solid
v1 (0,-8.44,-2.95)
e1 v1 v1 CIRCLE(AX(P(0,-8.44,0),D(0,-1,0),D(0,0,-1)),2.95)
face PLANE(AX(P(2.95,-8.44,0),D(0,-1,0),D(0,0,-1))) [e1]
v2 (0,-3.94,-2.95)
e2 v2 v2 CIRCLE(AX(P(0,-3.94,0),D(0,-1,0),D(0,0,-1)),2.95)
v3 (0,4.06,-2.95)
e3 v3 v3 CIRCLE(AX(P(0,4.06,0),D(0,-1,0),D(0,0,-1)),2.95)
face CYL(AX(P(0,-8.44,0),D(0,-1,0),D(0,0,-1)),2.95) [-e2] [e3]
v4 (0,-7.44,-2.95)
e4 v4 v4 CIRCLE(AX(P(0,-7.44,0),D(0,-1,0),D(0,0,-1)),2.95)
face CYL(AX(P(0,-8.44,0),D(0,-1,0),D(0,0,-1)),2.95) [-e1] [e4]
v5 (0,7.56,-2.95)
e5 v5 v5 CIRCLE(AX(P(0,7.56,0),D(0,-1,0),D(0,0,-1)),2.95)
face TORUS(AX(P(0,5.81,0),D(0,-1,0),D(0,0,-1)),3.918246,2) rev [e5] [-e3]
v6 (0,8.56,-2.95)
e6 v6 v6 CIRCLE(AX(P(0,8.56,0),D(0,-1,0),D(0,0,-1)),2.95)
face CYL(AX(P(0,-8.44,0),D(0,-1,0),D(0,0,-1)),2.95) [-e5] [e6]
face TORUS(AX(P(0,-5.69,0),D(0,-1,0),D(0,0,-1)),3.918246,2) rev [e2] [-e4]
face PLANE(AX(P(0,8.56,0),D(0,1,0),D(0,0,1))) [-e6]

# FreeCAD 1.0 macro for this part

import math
import FreeCAD as App
import Part
import Sketcher
Q = App.Units.Quantity

doc = App.newDocument("Part")
body = doc.addObject("PartDesign::Body", "Body")

sketch1 = body.newObject("Sketcher::SketchObject", "Sketch")
sketch1.AttachmentSupport = (doc.getObject("XY_Plane"), [""])
sketch1.MapMode = "FlatFace"
sketch1.addGeometry([
    Part.LineSegment(App.Vector(2.95, 8.56, 0), App.Vector(0, 8.56, 0)),
    Part.LineSegment(App.Vector(0, 8.56, 0), App.Vector(0, -8.44, 0)),
    Part.LineSegment(App.Vector(0, -8.44, 0), App.Vector(2.95, -8.44, 0)),
    Part.LineSegment(App.Vector(2.95, -8.44, 0), App.Vector(2.95, -7.44, 0)),
    Part.ArcOfCircle(Part.Circle(App.Vector(3.918246, -5.69, 0), App.Vector(0, 0, 1), 2), math.radians(118.955024), math.radians(241.044976)),
    Part.LineSegment(App.Vector(2.95, -3.94, 0), App.Vector(2.95, 4.06, 0)),
    Part.ArcOfCircle(Part.Circle(App.Vector(3.918246, 5.81, 0), App.Vector(0, 0, 1), 2), math.radians(118.955024), math.radians(241.044976)),
    Part.LineSegment(App.Vector(2.95, 7.56, 0), App.Vector(2.95, 8.56, 0)),
], False)
sketch1.addConstraint([
    Sketcher.Constraint("Coincident", 0, 2, 1, 1),
    Sketcher.Constraint("Coincident", 1, 2, 2, 1),
    Sketcher.Constraint("Coincident", 2, 2, 3, 1),
    Sketcher.Constraint("Coincident", 3, 2, 4, 2),
    Sketcher.Constraint("Coincident", 4, 1, 5, 1),
    Sketcher.Constraint("Coincident", 5, 2, 6, 2),
    Sketcher.Constraint("Coincident", 6, 1, 7, 1),
    Sketcher.Constraint("Coincident", 7, 2, 0, 1),
    Sketcher.Constraint("Horizontal", 0),
    Sketcher.Constraint("Vertical", 1),
    Sketcher.Constraint("Horizontal", 2),
    Sketcher.Constraint("Vertical", 3),
    Sketcher.Constraint("Vertical", 5),
    Sketcher.Constraint("Vertical", 7),
    Sketcher.Constraint("Equal", 4, 6),
    Sketcher.Constraint("PointOnObject", 0, 2, -2),
    Sketcher.Constraint("Vertical", 4, 3, 6, 3),
    Sketcher.Constraint("Vertical", 3, 2, 4, 1),
    Sketcher.Constraint("Vertical", 5, 2, 6, 1),
    Sketcher.Constraint("Equal", 3, 7),
    Sketcher.Constraint("Radius", 4, Q("2 mm")),
    Sketcher.Constraint("DistanceY", 1, 2, 1, 1, Q("17 mm")),
    Sketcher.Constraint("DistanceY", 3, 1, 3, 2, Q("1 mm")),
    Sketcher.Constraint("DistanceY", 5, 1, 5, 2, Q("8 mm")),
    Sketcher.Constraint("DistanceX", 0, 2, 0, 1, Q("2.95 mm")),
    Sketcher.Constraint("DistanceY", 4, 3, -1, 1, Q("5.69 mm")),
])
revolution = body.newObject("PartDesign::Revolution", "Revolution")
revolution.Profile = sketch1
revolution.ReferenceAxis = (sketch1, ["V_Axis"])
revolution.Angle = 360

doc.recompute()
